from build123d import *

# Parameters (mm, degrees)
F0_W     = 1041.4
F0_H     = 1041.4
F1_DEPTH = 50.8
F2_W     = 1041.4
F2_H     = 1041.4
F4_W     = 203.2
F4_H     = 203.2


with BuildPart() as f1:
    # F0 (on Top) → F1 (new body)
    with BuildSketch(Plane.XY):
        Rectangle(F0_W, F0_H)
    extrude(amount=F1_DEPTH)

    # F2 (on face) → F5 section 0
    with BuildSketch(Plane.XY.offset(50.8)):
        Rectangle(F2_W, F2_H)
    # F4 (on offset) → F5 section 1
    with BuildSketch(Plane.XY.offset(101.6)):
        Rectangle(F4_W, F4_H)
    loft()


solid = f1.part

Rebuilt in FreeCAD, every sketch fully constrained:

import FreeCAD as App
import Part
import Sketcher
Q = App.Units.Quantity


def add_polygon(sketch, points):
    """Adds a closed chain of lines whose ends are joined by coincident constraints."""
    first, n = sketch.GeometryCount, len(points)
    for a, b in zip(points, points[1:] + points[:1]):
        sketch.addGeometry(Part.LineSegment(App.Vector(*a, 0), App.Vector(*b, 0)), False)
    for i in range(n):
        sketch.addConstraint(Sketcher.Constraint("Coincident", first + i, 2, first + (i + 1) % n, 1))

doc = App.newDocument("Part")
body = doc.addObject("PartDesign::Body", "Body")

# Sketch on XY plane
sketch1 = body.newObject("Sketcher::SketchObject", "Sketch")
sketch1.AttachmentSupport = (doc.getObject("XY_Plane"), [""])
sketch1.MapMode = "FlatFace"
add_polygon(sketch1, [(-521, 521), (-521, -521), (521, -521), (521, 521)])  # lines 0-3
sketch1.addConstraint([
    Sketcher.Constraint("Vertical", 0),
    Sketcher.Constraint("Horizontal", 1),
    Sketcher.Constraint("Vertical", 2),
    Sketcher.Constraint("Horizontal", 3),
    Sketcher.Constraint("Symmetric", 0, 2, 2, 2, -1, 1),
    Sketcher.Constraint("Equal", 3, 0),
    Sketcher.Constraint("DistanceX", 1, 1, 1, 2, Q("41 in")),
])
pad1 = body.newObject("PartDesign::Pad", "Pad")
pad1.Profile = sketch1
pad1.Length = Q("2 in")

# Sketch on XY plane
sketch2 = body.newObject("Sketcher::SketchObject", "Sketch001")
sketch2.AttachmentSupport = (doc.getObject("XY_Plane"), [""])
sketch2.MapMode = "FlatFace"
sketch2.AttachmentOffset = App.Placement(App.Vector(0, 0, 2 * 25.4), App.Rotation())
add_polygon(sketch2, [(-521, 521), (-521, -521), (521, -521), (521, 521)])  # lines 0-3
sketch2.addConstraint([
    Sketcher.Constraint("Vertical", 0),
    Sketcher.Constraint("Horizontal", 1),
    Sketcher.Constraint("Vertical", 2),
    Sketcher.Constraint("Horizontal", 3),
    Sketcher.Constraint("Symmetric", 0, 2, 2, 2, -1, 1),
    Sketcher.Constraint("Equal", 3, 0),
    Sketcher.Constraint("DistanceX", 1, 1, 1, 2, Q("41 in")),
])

# Sketch on XY plane
sketch3 = body.newObject("Sketcher::SketchObject", "Sketch002")
sketch3.AttachmentSupport = (doc.getObject("XY_Plane"), [""])
sketch3.MapMode = "FlatFace"
sketch3.AttachmentOffset = App.Placement(App.Vector(0, 0, 4 * 25.4), App.Rotation())
add_polygon(sketch3, [(-102, 102), (-102, -102), (102, -102), (102, 102)])  # lines 0-3
sketch3.addConstraint([
    Sketcher.Constraint("Vertical", 0),
    Sketcher.Constraint("Horizontal", 1),
    Sketcher.Constraint("Vertical", 2),
    Sketcher.Constraint("Horizontal", 3),
    Sketcher.Constraint("Symmetric", 0, 2, 2, 2, -1, 1),
    Sketcher.Constraint("Equal", 3, 0),
    Sketcher.Constraint("DistanceX", 1, 1, 1, 2, Q("8 in")),
])

additiveloft = body.newObject("PartDesign::AdditiveLoft", "AdditiveLoft")
additiveloft.Profile = sketch2
additiveloft.Sections = [sketch3]

doc.recompute()
